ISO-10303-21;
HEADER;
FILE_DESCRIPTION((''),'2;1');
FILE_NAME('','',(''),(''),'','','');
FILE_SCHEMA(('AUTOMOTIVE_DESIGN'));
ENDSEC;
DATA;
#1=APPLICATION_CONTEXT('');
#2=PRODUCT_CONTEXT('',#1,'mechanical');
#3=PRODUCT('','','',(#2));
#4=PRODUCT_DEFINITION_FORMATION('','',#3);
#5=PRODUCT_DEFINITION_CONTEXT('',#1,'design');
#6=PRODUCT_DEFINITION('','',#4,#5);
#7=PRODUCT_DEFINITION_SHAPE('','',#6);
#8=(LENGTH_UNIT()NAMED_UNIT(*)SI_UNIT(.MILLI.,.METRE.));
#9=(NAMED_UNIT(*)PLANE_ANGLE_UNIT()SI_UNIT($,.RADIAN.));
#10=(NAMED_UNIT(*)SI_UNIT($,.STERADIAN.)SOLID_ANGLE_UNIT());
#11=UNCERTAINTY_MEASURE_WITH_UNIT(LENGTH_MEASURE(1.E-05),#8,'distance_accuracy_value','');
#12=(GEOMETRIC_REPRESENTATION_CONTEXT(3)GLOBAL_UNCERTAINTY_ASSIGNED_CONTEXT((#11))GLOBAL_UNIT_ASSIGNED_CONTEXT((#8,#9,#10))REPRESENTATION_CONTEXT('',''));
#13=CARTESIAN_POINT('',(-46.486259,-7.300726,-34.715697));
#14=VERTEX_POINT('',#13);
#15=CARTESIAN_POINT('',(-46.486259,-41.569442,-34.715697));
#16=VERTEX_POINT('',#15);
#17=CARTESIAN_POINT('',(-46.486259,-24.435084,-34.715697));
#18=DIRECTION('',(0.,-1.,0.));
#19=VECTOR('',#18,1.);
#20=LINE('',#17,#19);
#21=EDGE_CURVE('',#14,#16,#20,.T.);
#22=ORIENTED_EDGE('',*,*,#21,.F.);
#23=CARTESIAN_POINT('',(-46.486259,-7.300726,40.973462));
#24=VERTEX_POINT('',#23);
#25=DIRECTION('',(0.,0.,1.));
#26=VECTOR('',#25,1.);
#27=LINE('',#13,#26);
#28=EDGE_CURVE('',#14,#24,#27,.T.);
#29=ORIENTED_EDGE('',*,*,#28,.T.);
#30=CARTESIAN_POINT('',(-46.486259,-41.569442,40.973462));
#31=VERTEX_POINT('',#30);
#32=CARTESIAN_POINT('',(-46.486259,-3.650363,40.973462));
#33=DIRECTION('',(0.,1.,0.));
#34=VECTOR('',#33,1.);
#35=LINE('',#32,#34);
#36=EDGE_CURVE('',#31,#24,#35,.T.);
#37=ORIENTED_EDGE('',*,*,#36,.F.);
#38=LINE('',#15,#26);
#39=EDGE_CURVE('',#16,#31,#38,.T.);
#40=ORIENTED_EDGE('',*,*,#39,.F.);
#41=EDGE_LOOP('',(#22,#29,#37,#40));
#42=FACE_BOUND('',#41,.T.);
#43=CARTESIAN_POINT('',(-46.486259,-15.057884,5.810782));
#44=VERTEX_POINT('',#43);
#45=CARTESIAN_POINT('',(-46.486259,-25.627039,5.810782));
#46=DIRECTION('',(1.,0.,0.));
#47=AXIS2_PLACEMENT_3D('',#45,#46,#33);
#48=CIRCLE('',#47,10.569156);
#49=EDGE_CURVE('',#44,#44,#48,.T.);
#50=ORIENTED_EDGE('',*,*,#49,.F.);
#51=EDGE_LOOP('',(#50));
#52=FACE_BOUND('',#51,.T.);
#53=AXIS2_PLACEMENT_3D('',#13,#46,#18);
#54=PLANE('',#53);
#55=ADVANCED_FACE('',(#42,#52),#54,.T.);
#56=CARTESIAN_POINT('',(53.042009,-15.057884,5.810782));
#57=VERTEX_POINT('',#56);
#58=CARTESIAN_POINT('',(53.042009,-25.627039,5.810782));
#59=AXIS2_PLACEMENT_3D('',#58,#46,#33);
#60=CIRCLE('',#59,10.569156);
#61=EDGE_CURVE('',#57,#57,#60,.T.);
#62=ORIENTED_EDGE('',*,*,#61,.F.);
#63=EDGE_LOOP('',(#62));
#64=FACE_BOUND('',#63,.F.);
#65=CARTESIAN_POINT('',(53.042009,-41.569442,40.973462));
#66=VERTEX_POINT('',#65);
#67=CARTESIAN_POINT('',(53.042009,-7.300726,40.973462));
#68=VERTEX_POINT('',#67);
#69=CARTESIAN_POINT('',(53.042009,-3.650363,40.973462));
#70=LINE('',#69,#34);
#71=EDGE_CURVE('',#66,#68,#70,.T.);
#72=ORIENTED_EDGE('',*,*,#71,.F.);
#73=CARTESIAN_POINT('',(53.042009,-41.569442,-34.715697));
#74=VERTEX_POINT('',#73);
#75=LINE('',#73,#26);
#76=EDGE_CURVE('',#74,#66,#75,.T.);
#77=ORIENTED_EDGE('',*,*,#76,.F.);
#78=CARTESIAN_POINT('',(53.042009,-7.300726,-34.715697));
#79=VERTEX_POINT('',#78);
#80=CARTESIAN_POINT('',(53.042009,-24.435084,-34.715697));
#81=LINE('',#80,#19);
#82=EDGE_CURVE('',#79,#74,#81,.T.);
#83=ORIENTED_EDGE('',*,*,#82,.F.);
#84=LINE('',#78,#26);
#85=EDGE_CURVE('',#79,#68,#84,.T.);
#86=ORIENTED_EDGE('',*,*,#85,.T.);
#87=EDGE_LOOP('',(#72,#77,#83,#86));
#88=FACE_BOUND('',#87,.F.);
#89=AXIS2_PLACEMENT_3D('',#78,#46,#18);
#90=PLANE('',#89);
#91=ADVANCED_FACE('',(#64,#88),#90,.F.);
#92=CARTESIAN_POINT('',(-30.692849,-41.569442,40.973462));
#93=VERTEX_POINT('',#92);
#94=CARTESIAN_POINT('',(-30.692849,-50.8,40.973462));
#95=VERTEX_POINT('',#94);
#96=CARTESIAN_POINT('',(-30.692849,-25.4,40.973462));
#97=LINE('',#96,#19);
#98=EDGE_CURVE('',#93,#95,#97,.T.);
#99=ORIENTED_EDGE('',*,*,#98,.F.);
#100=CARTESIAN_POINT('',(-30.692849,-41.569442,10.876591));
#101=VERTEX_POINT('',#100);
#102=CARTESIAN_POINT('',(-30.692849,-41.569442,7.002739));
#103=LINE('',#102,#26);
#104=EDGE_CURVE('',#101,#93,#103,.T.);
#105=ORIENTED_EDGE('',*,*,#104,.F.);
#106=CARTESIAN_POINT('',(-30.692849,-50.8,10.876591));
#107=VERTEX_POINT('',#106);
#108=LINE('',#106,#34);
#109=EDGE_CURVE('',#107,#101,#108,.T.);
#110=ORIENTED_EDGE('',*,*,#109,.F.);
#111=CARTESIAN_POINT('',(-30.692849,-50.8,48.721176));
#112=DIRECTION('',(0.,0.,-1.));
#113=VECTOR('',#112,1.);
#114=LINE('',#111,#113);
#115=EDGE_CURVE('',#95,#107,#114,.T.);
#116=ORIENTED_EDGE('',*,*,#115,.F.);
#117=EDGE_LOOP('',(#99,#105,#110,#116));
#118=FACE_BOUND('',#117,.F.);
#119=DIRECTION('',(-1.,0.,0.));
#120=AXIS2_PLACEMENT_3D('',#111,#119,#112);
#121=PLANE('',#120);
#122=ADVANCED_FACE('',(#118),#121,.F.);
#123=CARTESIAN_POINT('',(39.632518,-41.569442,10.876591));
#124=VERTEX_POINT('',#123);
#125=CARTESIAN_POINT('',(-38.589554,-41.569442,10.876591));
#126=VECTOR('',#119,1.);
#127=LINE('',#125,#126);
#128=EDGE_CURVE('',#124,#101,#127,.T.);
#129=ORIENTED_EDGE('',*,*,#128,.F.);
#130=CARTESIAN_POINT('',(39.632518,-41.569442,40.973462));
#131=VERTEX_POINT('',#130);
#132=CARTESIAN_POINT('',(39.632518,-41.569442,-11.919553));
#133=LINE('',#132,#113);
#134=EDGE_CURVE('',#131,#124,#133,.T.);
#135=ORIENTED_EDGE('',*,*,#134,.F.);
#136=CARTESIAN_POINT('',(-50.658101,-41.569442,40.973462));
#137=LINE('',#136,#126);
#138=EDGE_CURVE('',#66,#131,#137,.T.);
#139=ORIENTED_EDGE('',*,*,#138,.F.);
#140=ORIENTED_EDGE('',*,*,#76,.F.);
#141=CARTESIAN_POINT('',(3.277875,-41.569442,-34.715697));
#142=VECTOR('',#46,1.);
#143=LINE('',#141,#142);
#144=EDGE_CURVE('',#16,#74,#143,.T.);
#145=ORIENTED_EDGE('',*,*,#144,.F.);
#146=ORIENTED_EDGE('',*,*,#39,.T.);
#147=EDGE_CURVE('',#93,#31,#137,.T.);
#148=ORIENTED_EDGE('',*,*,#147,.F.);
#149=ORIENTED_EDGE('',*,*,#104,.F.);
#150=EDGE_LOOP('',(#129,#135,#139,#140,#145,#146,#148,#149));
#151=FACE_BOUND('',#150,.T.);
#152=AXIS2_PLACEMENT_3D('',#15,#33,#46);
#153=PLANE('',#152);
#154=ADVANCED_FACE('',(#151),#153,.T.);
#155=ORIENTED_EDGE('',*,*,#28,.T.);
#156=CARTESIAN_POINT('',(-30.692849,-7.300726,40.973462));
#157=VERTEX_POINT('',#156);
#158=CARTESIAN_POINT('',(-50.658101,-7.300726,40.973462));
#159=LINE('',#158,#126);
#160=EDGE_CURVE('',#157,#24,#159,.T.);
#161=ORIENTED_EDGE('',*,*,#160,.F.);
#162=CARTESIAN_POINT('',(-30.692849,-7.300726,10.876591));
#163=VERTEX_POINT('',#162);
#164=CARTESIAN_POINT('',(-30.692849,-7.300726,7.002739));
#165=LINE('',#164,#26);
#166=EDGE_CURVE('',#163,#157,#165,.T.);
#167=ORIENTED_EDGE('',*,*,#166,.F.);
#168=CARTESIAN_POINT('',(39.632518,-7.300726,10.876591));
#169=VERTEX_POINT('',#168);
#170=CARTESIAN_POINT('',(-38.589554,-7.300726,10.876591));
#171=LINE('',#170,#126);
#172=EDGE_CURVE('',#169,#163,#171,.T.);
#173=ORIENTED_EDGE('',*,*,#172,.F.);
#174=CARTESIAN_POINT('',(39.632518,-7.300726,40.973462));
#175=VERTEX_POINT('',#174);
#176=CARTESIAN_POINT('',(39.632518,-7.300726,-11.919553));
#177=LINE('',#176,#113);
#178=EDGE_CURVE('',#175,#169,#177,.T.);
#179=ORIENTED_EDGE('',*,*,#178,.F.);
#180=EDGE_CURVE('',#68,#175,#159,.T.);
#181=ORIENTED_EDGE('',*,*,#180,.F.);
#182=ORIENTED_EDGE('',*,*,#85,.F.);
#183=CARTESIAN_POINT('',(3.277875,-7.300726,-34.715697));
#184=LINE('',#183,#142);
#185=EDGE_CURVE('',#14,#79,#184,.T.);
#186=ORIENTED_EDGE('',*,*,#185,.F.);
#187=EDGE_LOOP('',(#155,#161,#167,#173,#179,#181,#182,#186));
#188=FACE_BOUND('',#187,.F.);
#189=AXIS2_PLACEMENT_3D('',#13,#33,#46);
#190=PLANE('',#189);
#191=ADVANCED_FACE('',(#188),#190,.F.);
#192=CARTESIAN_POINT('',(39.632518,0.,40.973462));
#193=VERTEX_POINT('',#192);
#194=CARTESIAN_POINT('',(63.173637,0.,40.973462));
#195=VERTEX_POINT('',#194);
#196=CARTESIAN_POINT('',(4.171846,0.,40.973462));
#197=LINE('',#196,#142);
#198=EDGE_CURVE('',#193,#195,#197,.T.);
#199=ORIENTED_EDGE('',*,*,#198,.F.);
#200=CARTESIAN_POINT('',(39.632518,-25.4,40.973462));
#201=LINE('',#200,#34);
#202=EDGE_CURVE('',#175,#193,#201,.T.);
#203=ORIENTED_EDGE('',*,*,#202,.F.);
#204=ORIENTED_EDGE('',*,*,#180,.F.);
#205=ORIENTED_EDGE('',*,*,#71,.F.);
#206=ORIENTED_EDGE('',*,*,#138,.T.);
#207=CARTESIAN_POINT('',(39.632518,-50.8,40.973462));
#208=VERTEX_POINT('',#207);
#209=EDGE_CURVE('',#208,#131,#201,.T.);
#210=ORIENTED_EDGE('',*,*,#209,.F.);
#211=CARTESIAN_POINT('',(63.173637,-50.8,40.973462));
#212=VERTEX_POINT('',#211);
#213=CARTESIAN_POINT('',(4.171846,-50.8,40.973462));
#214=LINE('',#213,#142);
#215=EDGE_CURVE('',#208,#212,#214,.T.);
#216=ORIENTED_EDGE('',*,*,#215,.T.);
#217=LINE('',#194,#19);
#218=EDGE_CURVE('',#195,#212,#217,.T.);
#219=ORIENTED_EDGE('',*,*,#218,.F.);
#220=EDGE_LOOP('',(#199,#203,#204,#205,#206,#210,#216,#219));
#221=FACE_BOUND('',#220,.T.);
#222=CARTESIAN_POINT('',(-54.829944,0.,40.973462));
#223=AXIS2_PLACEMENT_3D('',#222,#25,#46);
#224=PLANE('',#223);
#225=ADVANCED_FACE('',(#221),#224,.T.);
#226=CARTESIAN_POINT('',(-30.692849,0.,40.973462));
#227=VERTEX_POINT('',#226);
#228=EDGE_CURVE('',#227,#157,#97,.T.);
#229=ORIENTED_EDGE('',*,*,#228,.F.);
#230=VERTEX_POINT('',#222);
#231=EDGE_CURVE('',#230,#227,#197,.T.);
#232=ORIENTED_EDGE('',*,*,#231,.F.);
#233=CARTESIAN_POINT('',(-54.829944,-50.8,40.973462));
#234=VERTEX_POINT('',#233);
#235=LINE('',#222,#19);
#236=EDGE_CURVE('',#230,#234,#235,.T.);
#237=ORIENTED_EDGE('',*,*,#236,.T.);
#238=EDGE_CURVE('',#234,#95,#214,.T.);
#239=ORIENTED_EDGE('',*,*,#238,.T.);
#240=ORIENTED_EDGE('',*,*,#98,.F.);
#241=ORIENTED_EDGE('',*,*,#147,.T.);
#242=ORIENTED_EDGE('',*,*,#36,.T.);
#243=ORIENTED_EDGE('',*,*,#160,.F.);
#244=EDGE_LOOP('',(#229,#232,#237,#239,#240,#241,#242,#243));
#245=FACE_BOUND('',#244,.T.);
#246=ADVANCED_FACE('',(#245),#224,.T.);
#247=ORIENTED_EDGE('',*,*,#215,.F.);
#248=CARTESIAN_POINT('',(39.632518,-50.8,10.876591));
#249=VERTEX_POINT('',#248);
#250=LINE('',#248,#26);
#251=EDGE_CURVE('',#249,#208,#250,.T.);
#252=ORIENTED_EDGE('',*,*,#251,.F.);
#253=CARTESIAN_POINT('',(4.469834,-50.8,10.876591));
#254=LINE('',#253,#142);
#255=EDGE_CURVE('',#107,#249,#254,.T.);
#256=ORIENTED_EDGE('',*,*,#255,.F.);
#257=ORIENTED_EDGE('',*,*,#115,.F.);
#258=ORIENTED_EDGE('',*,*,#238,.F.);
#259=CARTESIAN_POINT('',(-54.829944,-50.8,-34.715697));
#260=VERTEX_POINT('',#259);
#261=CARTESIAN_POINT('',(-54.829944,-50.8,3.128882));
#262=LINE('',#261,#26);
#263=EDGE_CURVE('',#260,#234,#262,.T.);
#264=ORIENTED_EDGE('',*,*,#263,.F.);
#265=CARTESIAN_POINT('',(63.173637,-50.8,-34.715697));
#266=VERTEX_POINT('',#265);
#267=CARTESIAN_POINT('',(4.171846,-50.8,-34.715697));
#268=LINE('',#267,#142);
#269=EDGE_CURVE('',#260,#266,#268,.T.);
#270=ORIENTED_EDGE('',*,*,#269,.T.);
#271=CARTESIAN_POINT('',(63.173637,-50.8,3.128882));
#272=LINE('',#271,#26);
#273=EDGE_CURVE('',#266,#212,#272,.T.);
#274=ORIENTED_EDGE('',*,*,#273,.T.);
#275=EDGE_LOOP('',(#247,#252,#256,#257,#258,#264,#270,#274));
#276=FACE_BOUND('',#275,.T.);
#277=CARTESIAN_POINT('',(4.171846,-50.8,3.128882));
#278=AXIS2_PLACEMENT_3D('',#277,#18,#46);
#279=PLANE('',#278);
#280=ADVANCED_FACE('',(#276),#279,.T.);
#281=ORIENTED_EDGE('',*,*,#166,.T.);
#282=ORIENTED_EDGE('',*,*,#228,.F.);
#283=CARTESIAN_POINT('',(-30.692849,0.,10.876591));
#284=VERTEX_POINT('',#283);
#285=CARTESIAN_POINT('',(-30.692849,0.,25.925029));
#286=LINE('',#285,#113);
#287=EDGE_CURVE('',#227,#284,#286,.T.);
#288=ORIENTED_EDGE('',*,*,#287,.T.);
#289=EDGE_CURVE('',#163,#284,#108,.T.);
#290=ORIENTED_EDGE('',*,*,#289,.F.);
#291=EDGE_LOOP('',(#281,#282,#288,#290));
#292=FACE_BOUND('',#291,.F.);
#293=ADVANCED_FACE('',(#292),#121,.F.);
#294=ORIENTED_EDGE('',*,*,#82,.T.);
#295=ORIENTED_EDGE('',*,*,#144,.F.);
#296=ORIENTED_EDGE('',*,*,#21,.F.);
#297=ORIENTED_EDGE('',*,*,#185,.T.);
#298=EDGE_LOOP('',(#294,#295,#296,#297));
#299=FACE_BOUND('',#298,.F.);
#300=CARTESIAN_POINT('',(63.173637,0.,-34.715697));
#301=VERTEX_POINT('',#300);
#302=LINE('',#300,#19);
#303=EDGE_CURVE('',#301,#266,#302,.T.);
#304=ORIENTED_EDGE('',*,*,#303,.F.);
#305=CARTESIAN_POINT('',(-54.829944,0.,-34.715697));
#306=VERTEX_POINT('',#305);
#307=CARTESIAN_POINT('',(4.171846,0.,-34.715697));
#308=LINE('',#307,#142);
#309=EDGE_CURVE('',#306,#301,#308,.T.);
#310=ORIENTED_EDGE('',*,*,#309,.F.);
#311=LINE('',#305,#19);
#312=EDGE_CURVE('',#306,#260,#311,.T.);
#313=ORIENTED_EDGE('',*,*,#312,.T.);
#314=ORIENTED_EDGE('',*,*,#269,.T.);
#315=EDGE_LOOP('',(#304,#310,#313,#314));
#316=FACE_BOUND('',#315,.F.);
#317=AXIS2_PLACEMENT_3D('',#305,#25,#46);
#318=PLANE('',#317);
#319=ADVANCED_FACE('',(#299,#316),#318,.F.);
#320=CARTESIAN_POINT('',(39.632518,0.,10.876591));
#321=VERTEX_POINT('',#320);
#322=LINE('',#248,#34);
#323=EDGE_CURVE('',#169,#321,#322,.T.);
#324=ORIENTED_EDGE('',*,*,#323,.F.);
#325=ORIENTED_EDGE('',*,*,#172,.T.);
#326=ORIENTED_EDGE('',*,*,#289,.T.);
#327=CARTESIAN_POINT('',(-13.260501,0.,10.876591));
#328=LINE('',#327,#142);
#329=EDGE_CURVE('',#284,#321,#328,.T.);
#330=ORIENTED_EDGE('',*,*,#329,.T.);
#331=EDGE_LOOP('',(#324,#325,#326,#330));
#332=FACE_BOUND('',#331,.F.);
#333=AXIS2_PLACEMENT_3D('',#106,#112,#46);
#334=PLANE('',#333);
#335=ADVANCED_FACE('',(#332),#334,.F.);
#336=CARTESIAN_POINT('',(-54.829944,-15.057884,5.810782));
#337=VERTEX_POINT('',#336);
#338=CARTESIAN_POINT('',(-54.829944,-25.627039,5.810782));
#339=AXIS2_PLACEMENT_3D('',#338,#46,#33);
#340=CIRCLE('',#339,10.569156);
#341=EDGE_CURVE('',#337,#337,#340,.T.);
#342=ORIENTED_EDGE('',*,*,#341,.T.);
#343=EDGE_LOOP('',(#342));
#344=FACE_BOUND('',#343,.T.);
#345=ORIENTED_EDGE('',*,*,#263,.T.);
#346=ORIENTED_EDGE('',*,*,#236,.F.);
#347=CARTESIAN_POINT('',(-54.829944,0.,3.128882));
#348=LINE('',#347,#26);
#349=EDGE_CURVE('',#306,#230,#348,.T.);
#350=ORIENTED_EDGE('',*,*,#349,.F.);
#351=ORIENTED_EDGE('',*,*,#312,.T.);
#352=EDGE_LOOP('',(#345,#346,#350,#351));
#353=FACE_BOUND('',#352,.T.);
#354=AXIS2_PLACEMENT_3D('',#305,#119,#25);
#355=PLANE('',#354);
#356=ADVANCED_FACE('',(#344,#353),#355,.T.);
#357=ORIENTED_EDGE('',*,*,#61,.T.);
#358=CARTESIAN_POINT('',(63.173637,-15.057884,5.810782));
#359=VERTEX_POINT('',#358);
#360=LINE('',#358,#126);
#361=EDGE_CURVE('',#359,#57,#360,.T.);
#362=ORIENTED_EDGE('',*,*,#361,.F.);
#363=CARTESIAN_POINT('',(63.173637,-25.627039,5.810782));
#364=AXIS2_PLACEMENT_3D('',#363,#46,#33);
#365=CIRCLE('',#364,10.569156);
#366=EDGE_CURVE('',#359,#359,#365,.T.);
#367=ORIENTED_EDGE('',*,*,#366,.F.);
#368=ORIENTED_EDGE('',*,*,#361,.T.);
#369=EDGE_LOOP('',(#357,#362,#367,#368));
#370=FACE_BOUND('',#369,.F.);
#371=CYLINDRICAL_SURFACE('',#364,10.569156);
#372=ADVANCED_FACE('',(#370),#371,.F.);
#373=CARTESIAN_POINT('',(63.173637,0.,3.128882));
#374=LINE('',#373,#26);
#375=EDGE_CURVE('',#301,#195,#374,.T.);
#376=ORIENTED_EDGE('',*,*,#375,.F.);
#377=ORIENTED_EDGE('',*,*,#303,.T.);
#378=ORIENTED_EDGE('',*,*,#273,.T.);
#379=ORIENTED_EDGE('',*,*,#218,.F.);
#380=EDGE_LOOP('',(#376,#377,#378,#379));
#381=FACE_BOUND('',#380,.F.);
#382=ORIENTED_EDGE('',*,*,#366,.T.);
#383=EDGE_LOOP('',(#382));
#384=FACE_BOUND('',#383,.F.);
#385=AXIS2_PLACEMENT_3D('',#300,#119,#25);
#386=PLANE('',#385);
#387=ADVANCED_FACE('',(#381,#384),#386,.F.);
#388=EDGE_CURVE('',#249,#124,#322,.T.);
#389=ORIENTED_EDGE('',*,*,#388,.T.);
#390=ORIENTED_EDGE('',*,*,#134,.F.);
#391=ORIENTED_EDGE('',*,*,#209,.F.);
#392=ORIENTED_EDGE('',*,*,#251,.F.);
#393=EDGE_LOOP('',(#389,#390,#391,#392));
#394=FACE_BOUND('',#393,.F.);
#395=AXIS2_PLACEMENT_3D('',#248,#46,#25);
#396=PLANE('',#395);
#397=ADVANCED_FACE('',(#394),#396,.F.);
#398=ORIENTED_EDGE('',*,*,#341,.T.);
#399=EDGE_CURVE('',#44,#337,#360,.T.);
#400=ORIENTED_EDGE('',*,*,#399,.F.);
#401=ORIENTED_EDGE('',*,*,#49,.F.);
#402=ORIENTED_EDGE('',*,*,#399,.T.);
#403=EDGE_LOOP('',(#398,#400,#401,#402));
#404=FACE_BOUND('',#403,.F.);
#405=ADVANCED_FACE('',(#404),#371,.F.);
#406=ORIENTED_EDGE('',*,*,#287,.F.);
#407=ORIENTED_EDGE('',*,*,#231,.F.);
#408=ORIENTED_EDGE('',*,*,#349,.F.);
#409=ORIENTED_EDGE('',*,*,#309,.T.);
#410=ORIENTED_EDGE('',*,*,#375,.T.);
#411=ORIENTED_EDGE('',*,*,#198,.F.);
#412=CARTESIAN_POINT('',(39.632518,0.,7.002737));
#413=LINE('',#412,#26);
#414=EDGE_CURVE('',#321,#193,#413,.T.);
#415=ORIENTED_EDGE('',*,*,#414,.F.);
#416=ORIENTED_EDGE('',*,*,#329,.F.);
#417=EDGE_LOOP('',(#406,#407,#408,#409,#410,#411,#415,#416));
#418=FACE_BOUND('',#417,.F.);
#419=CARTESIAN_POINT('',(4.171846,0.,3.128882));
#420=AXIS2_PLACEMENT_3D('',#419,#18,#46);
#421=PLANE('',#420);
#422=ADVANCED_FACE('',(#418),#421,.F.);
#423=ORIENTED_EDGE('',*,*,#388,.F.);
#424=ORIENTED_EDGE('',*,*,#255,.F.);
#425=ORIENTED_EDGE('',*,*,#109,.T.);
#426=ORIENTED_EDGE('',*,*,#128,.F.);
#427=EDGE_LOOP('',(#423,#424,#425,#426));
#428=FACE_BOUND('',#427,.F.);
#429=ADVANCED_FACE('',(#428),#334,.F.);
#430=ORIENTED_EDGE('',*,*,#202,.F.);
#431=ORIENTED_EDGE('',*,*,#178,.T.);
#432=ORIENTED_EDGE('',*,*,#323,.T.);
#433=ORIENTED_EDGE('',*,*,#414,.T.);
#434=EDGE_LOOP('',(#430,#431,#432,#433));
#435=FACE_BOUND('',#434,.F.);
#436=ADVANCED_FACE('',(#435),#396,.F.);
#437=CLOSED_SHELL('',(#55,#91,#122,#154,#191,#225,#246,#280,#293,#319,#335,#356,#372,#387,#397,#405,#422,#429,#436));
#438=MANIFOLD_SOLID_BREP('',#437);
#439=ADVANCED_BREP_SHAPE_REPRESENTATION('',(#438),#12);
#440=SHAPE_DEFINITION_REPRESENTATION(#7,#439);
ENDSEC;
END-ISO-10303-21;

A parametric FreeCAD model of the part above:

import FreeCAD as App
import Part
import Sketcher

doc = App.newDocument("Part")
params = doc.addObject("Spreadsheet::Sheet", "Params")
for row, (alias, value) in enumerate([
    ("pad1_length", "2 in"),
], start=1):
    params.set(f"A{row}", alias)
    params.set(f"B{row}", "=" + value)
    params.setAlias(f"B{row}", alias)

body = doc.addObject("PartDesign::Body", "Body")

sketch1 = doc.addObject("Sketcher::SketchObject", "Sketch")
body.addObject(sketch1)
sketch1.AttachmentSupport = (doc.XZ_Plane, [""])
sketch1.MapMode = "FlatFace"
sketch1.addGeometry(Part.LineSegment(App.Vector(-55, 41, 0), App.Vector(-55, -35, 0)), False)
sketch1.addGeometry(Part.LineSegment(App.Vector(-55, -35, 0), App.Vector(63, -35, 0)), False)
sketch1.addGeometry(Part.LineSegment(App.Vector(63, -35, 0), App.Vector(63, 41, 0)), False)
sketch1.addGeometry(Part.LineSegment(App.Vector(63, 41, 0), App.Vector(-55, 41, 0)), False)
sketch1.addConstraint(Sketcher.Constraint("Coincident", 0, 2, 1, 1))
sketch1.addConstraint(Sketcher.Constraint("Coincident", 1, 2, 2, 1))
sketch1.addConstraint(Sketcher.Constraint("Coincident", 2, 2, 3, 1))
sketch1.addConstraint(Sketcher.Constraint("Coincident", 3, 2, 0, 1))
sketch1.addConstraint(Sketcher.Constraint("Vertical", 0))
sketch1.addConstraint(Sketcher.Constraint("Horizontal", 1))
sketch1.addConstraint(Sketcher.Constraint("Vertical", 2))
sketch1.addConstraint(Sketcher.Constraint("Horizontal", 3))
sketch1.addConstraint(Sketcher.Constraint("DistanceX", 1, 1, 1, 2, 118.003581))
sketch1.addConstraint(Sketcher.Constraint("DistanceY", 0, 2, 0, 1, 75.689159))
sketch1.addConstraint(Sketcher.Constraint("DistanceX", 0, 2, -1, 1, 54.829944))
sketch1.addConstraint(Sketcher.Constraint("DistanceY", 0, 2, -1, 1, 34.715697))
pad1 = doc.addObject("PartDesign::Pad", "Pad")
body.addObject(pad1)
pad1.Profile = sketch1
pad1.setExpression("Length", "Params.pad1_length")

sketch2 = doc.addObject("Sketcher::SketchObject", "Sketch001")
body.addObject(sketch2)
sketch2.AttachmentSupport = (doc.XY_Plane, [""])
sketch2.MapMode = "FlatFace"
sketch2.AttachmentOffset = App.Placement(App.Vector(0, 0, -34.715697), App.Rotation())
sketch2.addGeometry(Part.LineSegment(App.Vector(-46, -42, 0), App.Vector(-46, -7, 0)), False)
sketch2.addGeometry(Part.LineSegment(App.Vector(-46, -7, 0), App.Vector(53, -7, 0)), False)
sketch2.addGeometry(Part.LineSegment(App.Vector(53, -7, 0), App.Vector(53, -42, 0)), False)
sketch2.addGeometry(Part.LineSegment(App.Vector(53, -42, 0), App.Vector(-46, -42, 0)), False)
sketch2.addConstraint(Sketcher.Constraint("Coincident", 0, 2, 1, 1))
sketch2.addConstraint(Sketcher.Constraint("Coincident", 1, 2, 2, 1))
sketch2.addConstraint(Sketcher.Constraint("Coincident", 2, 2, 3, 1))
sketch2.addConstraint(Sketcher.Constraint("Coincident", 3, 2, 0, 1))
sketch2.addConstraint(Sketcher.Constraint("Vertical", 0))
sketch2.addConstraint(Sketcher.Constraint("Horizontal", 1))
sketch2.addConstraint(Sketcher.Constraint("Vertical", 2))
sketch2.addConstraint(Sketcher.Constraint("Horizontal", 3))
sketch2.addConstraint(Sketcher.Constraint("DistanceX", 1, 1, 1, 2, 99.528268))
sketch2.addConstraint(Sketcher.Constraint("DistanceY", 0, 1, 0, 2, 34.268715))
sketch2.addConstraint(Sketcher.Constraint("DistanceX", 0, 2, -1, 1, 46.486259))
sketch2.addConstraint(Sketcher.Constraint("DistanceY", 2, 2, -1, 1, 41.569442))
pocket1 = doc.addObject("PartDesign::Pocket", "Pocket")
body.addObject(pocket1)
pocket1.Profile = sketch2
pocket1.Type = "ThroughAll"
pocket1.Reversed = True

sketch3 = doc.addObject("Sketcher::SketchObject", "Sketch002")
body.addObject(sketch3)
sketch3.AttachmentSupport = (doc.XZ_Plane, [""])
sketch3.MapMode = "FlatFace"
sketch3.AttachmentOffset = App.Placement(App.Vector(0, 0, 2 * 25.4), App.Rotation())
sketch3.addGeometry(Part.LineSegment(App.Vector(-31, 11, 0), App.Vector(40, 11, 0)), False)
sketch3.addGeometry(Part.LineSegment(App.Vector(40, 11, 0), App.Vector(40, 49, 0)), False)
sketch3.addGeometry(Part.LineSegment(App.Vector(40, 49, 0), App.Vector(-31, 49, 0)), False)
sketch3.addGeometry(Part.LineSegment(App.Vector(-31, 49, 0), App.Vector(-31, 11, 0)), False)
sketch3.addConstraint(Sketcher.Constraint("Coincident", 0, 2, 1, 1))
sketch3.addConstraint(Sketcher.Constraint("Coincident", 1, 2, 2, 1))
sketch3.addConstraint(Sketcher.Constraint("Coincident", 2, 2, 3, 1))
sketch3.addConstraint(Sketcher.Constraint("Coincident", 3, 2, 0, 1))
sketch3.addConstraint(Sketcher.Constraint("Horizontal", 0))
sketch3.addConstraint(Sketcher.Constraint("Vertical", 1))
sketch3.addConstraint(Sketcher.Constraint("Horizontal", 2))
sketch3.addConstraint(Sketcher.Constraint("Vertical", 3))
sketch3.addConstraint(Sketcher.Constraint("DistanceX", 0, 1, 0, 2, 70.325367))
sketch3.addConstraint(Sketcher.Constraint("DistanceY", 1, 1, 1, 2, 37.844584))
sketch3.addConstraint(Sketcher.Constraint("DistanceY", -1, 1, 0, 2, 10.876591))
sketch3.addConstraint(Sketcher.Constraint("DistanceX", 2, 2, -1, 1, 30.692849))
pocket2 = doc.addObject("PartDesign::Pocket", "Pocket001")
body.addObject(pocket2)
pocket2.Profile = sketch3
pocket2.Type = "ThroughAll"

sketch4 = doc.addObject("Sketcher::SketchObject", "Sketch003")
body.addObject(sketch4)
sketch4.AttachmentSupport = (doc.YZ_Plane, [""])
sketch4.MapMode = "FlatFace"
sketch4.AttachmentOffset = App.Placement(App.Vector(0, 0, 63.173637), App.Rotation())
sketch4.addGeometry(Part.Circle(App.Vector(-26, 6, 0), App.Vector(0, 0, 1), 11), False)
sketch4.addConstraint(Sketcher.Constraint("Diameter", 0, 21.138311))
sketch4.addConstraint(Sketcher.Constraint("DistanceX", 0, 3, -1, 1, 25.627039))
sketch4.addConstraint(Sketcher.Constraint("DistanceY", -1, 1, 0, 3, 5.810782))
pocket3 = doc.addObject("PartDesign::Pocket", "Pocket002")
body.addObject(pocket3)
pocket3.Profile = sketch4
pocket3.Type = "ThroughAll"

doc.recompute()
